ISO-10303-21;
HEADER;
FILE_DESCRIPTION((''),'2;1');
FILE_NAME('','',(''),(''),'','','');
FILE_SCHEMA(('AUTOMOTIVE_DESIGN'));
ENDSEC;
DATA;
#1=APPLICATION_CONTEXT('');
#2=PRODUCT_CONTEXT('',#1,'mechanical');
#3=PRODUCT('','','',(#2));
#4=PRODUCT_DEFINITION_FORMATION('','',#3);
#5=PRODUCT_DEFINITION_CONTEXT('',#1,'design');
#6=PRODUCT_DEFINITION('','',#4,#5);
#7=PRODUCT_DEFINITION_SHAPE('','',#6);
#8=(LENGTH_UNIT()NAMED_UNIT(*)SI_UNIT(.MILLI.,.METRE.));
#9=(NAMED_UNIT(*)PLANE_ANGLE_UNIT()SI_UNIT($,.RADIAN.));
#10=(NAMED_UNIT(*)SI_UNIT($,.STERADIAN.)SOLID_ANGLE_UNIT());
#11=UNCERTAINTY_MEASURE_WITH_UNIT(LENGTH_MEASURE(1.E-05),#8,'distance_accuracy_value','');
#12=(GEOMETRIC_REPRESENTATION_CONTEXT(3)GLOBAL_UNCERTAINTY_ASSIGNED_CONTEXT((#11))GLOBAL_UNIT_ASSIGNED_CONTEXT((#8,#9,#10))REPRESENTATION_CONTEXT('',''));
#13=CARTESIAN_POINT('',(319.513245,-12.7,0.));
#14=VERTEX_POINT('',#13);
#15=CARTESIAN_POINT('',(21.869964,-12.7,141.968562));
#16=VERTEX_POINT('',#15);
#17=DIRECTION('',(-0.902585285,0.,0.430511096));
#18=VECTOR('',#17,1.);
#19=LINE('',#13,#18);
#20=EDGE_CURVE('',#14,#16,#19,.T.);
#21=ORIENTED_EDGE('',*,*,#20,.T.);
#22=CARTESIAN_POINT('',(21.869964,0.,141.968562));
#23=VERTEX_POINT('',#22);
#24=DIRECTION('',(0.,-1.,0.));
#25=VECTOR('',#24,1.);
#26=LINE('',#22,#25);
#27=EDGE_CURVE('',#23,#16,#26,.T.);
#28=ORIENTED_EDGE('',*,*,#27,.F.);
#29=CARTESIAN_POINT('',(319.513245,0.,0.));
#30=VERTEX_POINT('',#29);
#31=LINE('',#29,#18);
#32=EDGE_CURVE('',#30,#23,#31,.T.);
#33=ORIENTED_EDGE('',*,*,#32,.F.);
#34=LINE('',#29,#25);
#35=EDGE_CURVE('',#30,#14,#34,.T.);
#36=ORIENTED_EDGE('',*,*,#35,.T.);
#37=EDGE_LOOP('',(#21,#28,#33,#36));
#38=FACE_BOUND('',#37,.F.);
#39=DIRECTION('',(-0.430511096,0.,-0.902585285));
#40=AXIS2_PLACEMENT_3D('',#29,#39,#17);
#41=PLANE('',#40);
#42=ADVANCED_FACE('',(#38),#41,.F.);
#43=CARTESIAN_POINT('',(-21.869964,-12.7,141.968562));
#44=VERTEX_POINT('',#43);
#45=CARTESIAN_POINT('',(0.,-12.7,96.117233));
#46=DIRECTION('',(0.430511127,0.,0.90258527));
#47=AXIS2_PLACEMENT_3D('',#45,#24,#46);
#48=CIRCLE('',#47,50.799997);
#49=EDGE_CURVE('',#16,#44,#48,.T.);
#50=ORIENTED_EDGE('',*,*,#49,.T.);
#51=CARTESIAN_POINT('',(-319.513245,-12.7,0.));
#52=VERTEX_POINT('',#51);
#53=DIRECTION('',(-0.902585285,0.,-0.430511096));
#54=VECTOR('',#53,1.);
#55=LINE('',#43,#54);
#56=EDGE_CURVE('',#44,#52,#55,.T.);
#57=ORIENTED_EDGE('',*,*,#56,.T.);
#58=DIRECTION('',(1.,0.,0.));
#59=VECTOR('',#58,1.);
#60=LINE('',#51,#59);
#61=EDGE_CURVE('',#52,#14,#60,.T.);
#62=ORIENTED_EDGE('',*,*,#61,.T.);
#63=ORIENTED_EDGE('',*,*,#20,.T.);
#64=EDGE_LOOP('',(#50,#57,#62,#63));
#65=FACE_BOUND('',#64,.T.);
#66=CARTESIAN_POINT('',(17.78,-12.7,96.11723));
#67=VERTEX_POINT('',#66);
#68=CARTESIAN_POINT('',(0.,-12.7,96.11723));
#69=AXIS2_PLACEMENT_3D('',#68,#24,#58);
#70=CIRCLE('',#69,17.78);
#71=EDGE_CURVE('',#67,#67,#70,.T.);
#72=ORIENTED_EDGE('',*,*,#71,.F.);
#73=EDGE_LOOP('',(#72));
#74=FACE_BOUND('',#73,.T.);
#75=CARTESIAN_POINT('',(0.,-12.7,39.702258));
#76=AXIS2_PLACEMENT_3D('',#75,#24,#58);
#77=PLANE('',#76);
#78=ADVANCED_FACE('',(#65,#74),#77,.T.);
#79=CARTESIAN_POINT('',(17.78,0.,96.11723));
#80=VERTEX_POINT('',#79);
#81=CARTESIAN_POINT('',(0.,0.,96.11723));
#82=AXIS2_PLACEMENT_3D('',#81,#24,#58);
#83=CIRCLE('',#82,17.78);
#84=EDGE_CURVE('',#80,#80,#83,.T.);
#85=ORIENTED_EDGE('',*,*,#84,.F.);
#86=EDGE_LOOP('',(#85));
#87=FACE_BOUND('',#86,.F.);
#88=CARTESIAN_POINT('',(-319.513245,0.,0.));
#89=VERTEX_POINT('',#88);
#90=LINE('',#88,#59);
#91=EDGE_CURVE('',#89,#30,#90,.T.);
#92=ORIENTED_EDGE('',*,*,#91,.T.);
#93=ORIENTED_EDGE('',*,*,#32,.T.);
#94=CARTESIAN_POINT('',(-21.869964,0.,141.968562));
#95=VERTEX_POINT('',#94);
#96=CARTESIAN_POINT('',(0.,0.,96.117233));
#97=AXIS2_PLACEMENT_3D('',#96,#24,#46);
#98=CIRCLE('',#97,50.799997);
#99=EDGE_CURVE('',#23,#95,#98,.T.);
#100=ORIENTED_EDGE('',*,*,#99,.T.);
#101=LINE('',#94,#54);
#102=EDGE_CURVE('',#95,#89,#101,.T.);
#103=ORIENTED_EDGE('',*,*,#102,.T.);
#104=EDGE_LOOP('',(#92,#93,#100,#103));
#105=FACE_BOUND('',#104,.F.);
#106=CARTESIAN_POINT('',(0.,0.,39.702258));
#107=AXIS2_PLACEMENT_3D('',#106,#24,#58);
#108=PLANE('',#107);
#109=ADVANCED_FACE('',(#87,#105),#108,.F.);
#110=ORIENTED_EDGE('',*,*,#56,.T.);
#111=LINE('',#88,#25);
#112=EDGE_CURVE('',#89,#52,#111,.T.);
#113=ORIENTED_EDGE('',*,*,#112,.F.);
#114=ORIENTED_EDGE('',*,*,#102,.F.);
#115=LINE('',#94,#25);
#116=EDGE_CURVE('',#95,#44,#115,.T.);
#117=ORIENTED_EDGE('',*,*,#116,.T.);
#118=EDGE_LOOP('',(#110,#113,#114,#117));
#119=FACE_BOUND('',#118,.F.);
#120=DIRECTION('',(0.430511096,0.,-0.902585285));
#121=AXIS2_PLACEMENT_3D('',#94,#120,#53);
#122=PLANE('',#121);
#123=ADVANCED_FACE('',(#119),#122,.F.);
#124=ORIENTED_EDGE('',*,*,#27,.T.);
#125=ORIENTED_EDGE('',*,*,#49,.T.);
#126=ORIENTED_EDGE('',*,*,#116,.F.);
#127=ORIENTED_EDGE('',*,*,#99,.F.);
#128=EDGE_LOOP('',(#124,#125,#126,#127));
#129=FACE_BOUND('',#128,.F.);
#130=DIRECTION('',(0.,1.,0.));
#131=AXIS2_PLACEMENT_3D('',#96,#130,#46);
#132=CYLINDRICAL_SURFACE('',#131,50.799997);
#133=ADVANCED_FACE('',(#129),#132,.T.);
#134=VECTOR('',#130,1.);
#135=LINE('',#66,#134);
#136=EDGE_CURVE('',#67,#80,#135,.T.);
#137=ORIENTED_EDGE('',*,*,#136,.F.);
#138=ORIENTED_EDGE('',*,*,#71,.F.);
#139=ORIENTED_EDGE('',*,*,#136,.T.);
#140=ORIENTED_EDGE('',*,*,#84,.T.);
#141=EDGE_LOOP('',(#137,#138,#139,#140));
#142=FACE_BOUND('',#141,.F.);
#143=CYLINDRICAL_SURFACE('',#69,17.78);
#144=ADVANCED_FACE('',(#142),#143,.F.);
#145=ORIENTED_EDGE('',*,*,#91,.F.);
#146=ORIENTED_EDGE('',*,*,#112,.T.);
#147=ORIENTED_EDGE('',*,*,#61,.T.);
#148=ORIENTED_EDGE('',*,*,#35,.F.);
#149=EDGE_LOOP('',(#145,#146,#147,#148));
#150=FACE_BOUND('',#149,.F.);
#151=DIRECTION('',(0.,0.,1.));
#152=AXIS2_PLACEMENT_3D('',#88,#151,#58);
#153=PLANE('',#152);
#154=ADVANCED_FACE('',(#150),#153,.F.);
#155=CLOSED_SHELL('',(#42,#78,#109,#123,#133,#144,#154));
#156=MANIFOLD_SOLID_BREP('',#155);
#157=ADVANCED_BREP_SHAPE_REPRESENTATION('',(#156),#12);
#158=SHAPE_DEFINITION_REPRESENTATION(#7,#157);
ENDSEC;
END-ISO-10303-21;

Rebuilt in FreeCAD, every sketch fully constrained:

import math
import FreeCAD as App
import Part
import Sketcher
from FreeCAD import Vector
Q = App.Units.Quantity

doc = App.newDocument("Part")
body = doc.addObject("PartDesign::Body", "Body")

sketch1 = body.newObject("Sketcher::SketchObject", "Sketch")
sketch1.AttachmentSupport = (doc.getObject("XZ_Plane"), [""])
sketch1.MapMode = "FlatFace"
sketch1.addGeometry([
    Part.LineSegment(Vector(-21.869964, 141.968562, 0), Vector(-319.513245, 0, 0)),
    Part.LineSegment(Vector(-319.513245, 0, 0), Vector(319.513245, 0, 0)),
    Part.LineSegment(Vector(319.513245, 0, 0), Vector(21.869964, 141.968562, 0)),
    Part.ArcOfCircle(Part.Circle(Vector(0, 96.117233, 0), Vector(0, 0, 1), 50.799997), math.radians(64.499998), math.radians(115.500002)),
], False)
sketch1.addConstraint([
    Sketcher.Constraint("Coincident", 0, 2, 1, 1),
    Sketcher.Constraint("Coincident", 1, 2, 2, 1),
    Sketcher.Constraint("Tangent", 2, 2, 3, 1),
    Sketcher.Constraint("Tangent", 3, 2, 0, 1),
    Sketcher.Constraint("Horizontal", 1),
    Sketcher.Constraint("Symmetric", 0, 2, 1, 2, -1, 1),
    Sketcher.Constraint("PointOnObject", 3, 3, -2),
    Sketcher.Constraint("Radius", 3, Q("1.9999999 in")),
    Sketcher.Constraint("Angle", 0, Q("-154.5 deg")),
    Sketcher.Constraint("DistanceX", 1, 1, 1, 2, 639.02649),
])
pad1 = body.newObject("PartDesign::Pad", "Pad")
pad1.Profile = sketch1
pad1.Length = Q("0.5 in")

sketch2 = body.newObject("Sketcher::SketchObject", "Sketch001")
sketch2.AttachmentSupport = (doc.getObject("XZ_Plane"), [""])
sketch2.MapMode = "FlatFace"
sketch2.AttachmentOffset = App.Placement(Vector(0, 0, 0.5 * 25.4), App.Rotation())
sketch2.addGeometry(Part.Circle(Vector(0, 96.11723, 0), Vector(0, 0, 1), 17.78), False)
sketch2.addConstraint([
    Sketcher.Constraint("PointOnObject", 0, 3, -2),
    Sketcher.Constraint("Diameter", 0, Q("1.4 in")),
    Sketcher.Constraint("DistanceY", -1, 1, 0, 3, 96.11723),
])
pocket1 = body.newObject("PartDesign::Pocket", "Pocket")
pocket1.Profile = sketch2
pocket1.Type = "ThroughAll"

doc.recompute()
